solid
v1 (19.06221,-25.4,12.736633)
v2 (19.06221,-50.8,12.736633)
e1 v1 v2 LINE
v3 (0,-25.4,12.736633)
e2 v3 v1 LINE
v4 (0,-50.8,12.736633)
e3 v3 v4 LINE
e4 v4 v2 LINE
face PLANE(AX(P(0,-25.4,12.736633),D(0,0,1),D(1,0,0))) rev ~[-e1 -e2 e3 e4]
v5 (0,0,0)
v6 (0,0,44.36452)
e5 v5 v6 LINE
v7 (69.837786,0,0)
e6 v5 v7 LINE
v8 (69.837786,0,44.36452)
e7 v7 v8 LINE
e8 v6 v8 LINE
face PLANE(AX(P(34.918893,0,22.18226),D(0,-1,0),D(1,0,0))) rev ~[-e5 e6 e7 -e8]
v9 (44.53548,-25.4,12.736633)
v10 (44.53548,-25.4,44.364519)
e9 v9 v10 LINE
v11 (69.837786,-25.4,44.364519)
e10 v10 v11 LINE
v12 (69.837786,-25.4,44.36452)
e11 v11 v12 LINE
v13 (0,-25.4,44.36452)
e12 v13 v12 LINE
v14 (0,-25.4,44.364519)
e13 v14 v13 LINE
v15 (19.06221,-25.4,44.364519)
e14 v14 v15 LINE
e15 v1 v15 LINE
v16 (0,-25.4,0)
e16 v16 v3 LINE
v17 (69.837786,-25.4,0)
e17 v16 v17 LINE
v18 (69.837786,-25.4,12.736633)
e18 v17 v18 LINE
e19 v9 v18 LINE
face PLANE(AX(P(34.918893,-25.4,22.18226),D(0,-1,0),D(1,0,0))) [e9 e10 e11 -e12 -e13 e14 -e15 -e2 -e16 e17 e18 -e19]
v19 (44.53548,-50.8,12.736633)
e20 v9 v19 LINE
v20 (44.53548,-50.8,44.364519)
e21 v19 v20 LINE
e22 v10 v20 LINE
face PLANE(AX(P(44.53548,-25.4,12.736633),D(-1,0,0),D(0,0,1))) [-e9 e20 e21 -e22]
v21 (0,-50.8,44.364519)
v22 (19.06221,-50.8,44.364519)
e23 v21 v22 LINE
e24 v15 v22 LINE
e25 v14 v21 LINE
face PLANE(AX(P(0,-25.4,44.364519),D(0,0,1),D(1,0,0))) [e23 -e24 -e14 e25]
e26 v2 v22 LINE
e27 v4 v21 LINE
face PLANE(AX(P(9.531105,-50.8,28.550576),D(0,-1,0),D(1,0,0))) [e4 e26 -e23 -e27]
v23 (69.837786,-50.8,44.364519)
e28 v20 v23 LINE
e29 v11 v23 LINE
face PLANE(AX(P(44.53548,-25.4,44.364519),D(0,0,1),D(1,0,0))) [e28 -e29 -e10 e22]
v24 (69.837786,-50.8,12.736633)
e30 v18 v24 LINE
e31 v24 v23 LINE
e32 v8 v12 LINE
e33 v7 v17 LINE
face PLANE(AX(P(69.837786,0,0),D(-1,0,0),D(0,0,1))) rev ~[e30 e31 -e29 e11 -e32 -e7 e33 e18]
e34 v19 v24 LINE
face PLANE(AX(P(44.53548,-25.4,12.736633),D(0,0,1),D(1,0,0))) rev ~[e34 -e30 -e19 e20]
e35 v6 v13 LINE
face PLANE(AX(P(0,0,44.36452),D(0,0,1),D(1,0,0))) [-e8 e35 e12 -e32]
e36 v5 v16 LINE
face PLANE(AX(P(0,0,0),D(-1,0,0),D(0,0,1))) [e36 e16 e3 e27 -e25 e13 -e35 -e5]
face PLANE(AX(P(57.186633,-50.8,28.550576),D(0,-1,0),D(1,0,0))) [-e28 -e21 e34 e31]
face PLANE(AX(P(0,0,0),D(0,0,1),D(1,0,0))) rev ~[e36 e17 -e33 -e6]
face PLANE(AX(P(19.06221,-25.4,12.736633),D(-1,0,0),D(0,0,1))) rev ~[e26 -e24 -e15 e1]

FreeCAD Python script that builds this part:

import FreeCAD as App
import Part
import Sketcher
Q = App.Units.Quantity

doc = App.newDocument("Part")
body = doc.addObject("PartDesign::Body", "Body")

# Sketch on XZ plane
sketch1 = body.newObject("Sketcher::SketchObject", "Sketch")
sketch1.AttachmentSupport = (doc.getObject("XZ_Plane"), [""])
sketch1.MapMode = "FlatFace"
sketch1.addGeometry(Part.LineSegment(App.Vector(0, 44, 0), App.Vector(0, 0, 0)), False)
sketch1.addGeometry(Part.LineSegment(App.Vector(0, 0, 0), App.Vector(70, 0, 0)), False)
sketch1.addGeometry(Part.LineSegment(App.Vector(70, 0, 0), App.Vector(70, 44, 0)), False)
sketch1.addGeometry(Part.LineSegment(App.Vector(70, 44, 0), App.Vector(0, 44, 0)), False)
sketch1.addConstraint(Sketcher.Constraint("Coincident", 0, 2, 1, 1))
sketch1.addConstraint(Sketcher.Constraint("Coincident", 1, 2, 2, 1))
sketch1.addConstraint(Sketcher.Constraint("Coincident", 2, 2, 3, 1))
sketch1.addConstraint(Sketcher.Constraint("Coincident", 3, 2, 0, 1))
sketch1.addConstraint(Sketcher.Constraint("Vertical", 0))
sketch1.addConstraint(Sketcher.Constraint("Horizontal", 1))
sketch1.addConstraint(Sketcher.Constraint("Vertical", 2))
sketch1.addConstraint(Sketcher.Constraint("Horizontal", 3))
sketch1.addConstraint(Sketcher.Constraint("Coincident", 0, 2, -1, 1))
sketch1.addConstraint(Sketcher.Constraint("DistanceY", 0, 2, 0, 1, Q("44.364519 mm")))
sketch1.addConstraint(Sketcher.Constraint("DistanceX", 1, 1, 1, 2, Q("69.837786 mm")))
pad1 = body.newObject("PartDesign::Pad", "Pad")
pad1.Profile = sketch1
pad1.Length = Q("1 in")

# Sketch on XZ plane
sketch2 = body.newObject("Sketcher::SketchObject", "Sketch001")
sketch2.AttachmentSupport = (doc.getObject("XZ_Plane"), [""])
sketch2.MapMode = "FlatFace"
sketch2.AttachmentOffset = App.Placement(App.Vector(0, 0, 1 * 25.4), App.Rotation())
sketch2.addGeometry(Part.LineSegment(App.Vector(0, 44, 0), App.Vector(0, 13, 0)), False)
sketch2.addGeometry(Part.LineSegment(App.Vector(0, 13, 0), App.Vector(19, 13, 0)), False)
sketch2.addGeometry(Part.LineSegment(App.Vector(19, 13, 0), App.Vector(19, 44, 0)), False)
sketch2.addGeometry(Part.LineSegment(App.Vector(19, 44, 0), App.Vector(0, 44, 0)), False)
sketch2.addGeometry(Part.LineSegment(App.Vector(45, 44, 0), App.Vector(45, 13, 0)), False)
sketch2.addGeometry(Part.LineSegment(App.Vector(45, 13, 0), App.Vector(70, 13, 0)), False)
sketch2.addGeometry(Part.LineSegment(App.Vector(70, 13, 0), App.Vector(70, 44, 0)), False)
sketch2.addGeometry(Part.LineSegment(App.Vector(70, 44, 0), App.Vector(45, 44, 0)), False)
sketch2.addConstraint(Sketcher.Constraint("Coincident", 0, 2, 1, 1))
sketch2.addConstraint(Sketcher.Constraint("Coincident", 1, 2, 2, 1))
sketch2.addConstraint(Sketcher.Constraint("Coincident", 2, 2, 3, 1))
sketch2.addConstraint(Sketcher.Constraint("Coincident", 3, 2, 0, 1))
sketch2.addConstraint(Sketcher.Constraint("Coincident", 4, 2, 5, 1))
sketch2.addConstraint(Sketcher.Constraint("Coincident", 5, 2, 6, 1))
sketch2.addConstraint(Sketcher.Constraint("Coincident", 6, 2, 7, 1))
sketch2.addConstraint(Sketcher.Constraint("Coincident", 7, 2, 4, 1))
sketch2.addConstraint(Sketcher.Constraint("Vertical", 0))
sketch2.addConstraint(Sketcher.Constraint("Horizontal", 1))
sketch2.addConstraint(Sketcher.Constraint("Vertical", 2))
sketch2.addConstraint(Sketcher.Constraint("Horizontal", 3))
sketch2.addConstraint(Sketcher.Constraint("Vertical", 4))
sketch2.addConstraint(Sketcher.Constraint("Horizontal", 5))
sketch2.addConstraint(Sketcher.Constraint("Vertical", 6))
sketch2.addConstraint(Sketcher.Constraint("Horizontal", 7))
sketch2.addConstraint(Sketcher.Constraint("PointOnObject", 0, 2, -2))
sketch2.addConstraint(Sketcher.Constraint("Horizontal", 1, 2, 4, 2))
sketch2.addConstraint(Sketcher.Constraint("Horizontal", 3, 2, 6, 2))
sketch2.addConstraint(Sketcher.Constraint("DistanceX", 1, 1, 1, 2, Q("19.06221 mm")))
sketch2.addConstraint(Sketcher.Constraint("DistanceX", 5, 1, 5, 2, Q("25.302306 mm")))
sketch2.addConstraint(Sketcher.Constraint("DistanceY", 0, 2, 0, 1, Q("31.627885 mm")))
sketch2.addConstraint(Sketcher.Constraint("DistanceY", -1, 1, 2, 2, Q("44.364519 mm")))
sketch2.addConstraint(Sketcher.Constraint("DistanceX", -1, 1, 4, 2, Q("44.53548 mm")))
pad2 = body.newObject("PartDesign::Pad", "Pad001")
pad2.Profile = sketch2
pad2.Length = Q("1 in")

doc.recompute()
